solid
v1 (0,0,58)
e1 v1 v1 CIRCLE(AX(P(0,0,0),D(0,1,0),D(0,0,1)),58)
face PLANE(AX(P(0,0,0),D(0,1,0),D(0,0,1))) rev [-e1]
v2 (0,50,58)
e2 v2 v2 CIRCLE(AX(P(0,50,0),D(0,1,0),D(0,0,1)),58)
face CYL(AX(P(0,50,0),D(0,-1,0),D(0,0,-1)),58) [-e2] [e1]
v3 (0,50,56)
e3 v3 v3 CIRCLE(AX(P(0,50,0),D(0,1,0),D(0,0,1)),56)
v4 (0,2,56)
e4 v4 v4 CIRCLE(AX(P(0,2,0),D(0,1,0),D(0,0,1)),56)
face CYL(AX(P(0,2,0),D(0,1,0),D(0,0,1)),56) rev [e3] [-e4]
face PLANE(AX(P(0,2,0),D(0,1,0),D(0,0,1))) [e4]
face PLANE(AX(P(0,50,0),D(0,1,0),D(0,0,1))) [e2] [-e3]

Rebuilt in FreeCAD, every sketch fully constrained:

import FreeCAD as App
import Part
import Sketcher
from FreeCAD import Vector
Q = App.Units.Quantity

doc = App.newDocument("Part")
body = doc.addObject("PartDesign::Body", "Body")

# Sketch on XZ plane
sketch1 = body.newObject("Sketcher::SketchObject", "Sketch")
sketch1.AttachmentSupport = (doc.getObject("XZ_Plane"), [""])
sketch1.MapMode = "FlatFace"
sketch1.addGeometry(Part.Circle(Vector(0, 0, 0), Vector(0, 0, 1), 58), False)
sketch1.addConstraint(Sketcher.Constraint("Coincident", 0, 3, -1, 1))
sketch1.addConstraint(Sketcher.Constraint("Diameter", 0, Q("116 mm")))
pad1 = body.newObject("PartDesign::Pad", "Pad")
pad1.Profile = sketch1
pad1.Length = 50
pad1.Reversed = True

# Sketch on XZ plane
sketch2 = body.newObject("Sketcher::SketchObject", "Sketch001")
sketch2.AttachmentSupport = (doc.getObject("XZ_Plane"), [""])
sketch2.MapMode = "FlatFace"
sketch2.AttachmentOffset = App.Placement(Vector(0, 0, -50), App.Rotation())
sketch2.addGeometry(Part.Circle(Vector(0, 0, 0), Vector(0, 0, 1), 56), False)
sketch2.addConstraint(Sketcher.Constraint("Coincident", 0, 3, -1, 1))
sketch2.addConstraint(Sketcher.Constraint("Diameter", 0, Q("112 mm")))
pocket1 = body.newObject("PartDesign::Pocket", "Pocket")
pocket1.Profile = sketch2
pocket1.Length = 48
pocket1.Reversed = True

doc.recompute()
